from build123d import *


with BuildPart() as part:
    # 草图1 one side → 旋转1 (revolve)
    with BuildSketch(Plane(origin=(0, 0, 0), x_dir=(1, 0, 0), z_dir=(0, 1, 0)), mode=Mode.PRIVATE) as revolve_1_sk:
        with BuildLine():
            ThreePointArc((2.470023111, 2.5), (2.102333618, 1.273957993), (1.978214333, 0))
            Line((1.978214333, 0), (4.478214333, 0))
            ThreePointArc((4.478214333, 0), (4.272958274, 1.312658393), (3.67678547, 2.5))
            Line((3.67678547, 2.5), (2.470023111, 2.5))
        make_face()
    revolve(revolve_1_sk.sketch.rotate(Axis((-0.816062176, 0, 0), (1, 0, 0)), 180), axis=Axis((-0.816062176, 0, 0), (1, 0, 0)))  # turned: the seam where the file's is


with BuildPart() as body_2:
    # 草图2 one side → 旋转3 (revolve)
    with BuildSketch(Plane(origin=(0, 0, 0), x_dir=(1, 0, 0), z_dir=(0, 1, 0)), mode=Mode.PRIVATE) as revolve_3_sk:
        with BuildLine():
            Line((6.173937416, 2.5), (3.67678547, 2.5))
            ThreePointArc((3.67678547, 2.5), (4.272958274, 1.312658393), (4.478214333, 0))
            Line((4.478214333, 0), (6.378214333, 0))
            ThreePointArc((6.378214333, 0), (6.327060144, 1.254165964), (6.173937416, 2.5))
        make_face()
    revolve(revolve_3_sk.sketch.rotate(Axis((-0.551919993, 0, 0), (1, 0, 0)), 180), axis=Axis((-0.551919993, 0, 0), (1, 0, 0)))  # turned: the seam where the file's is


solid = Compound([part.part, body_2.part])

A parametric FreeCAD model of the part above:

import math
import FreeCAD as App
import Part
import Sketcher

V = App.Vector
Q = App.Units.Quantity

doc = App.newDocument("Part")
body = doc.addObject("PartDesign::Body", "Body")

# Sketch on XZ plane
sketch1 = body.newObject("Sketcher::SketchObject", "Sketch")
sketch1.AttachmentSupport = (doc.getObject("XZ_Plane"), [""])
sketch1.MapMode = "FlatFace"
sketch1.addGeometry(Part.ArcOfCircle(Part.Circle(V(8.578214, 0, 0), V(0, 0, 1), 6.6), math.radians(180), math.radians(202.258621)), False)
sketch1.addGeometry(Part.LineSegment(V(1.978214, 0, 0), V(4.478214, 0, 0)), False)
sketch1.addGeometry(Part.ArcOfCircle(Part.Circle(V(0.178214, 0, 0), V(0, 0, 1), 4.3), math.radians(-35.548744), math.radians(0)), False)
sketch1.addGeometry(Part.LineSegment(V(3.676785, -2.5, 0), V(2.470023, -2.5, 0)), False)
sketch1.addConstraint(Sketcher.Constraint("Coincident", 0, 1, 1, 1))
sketch1.addConstraint(Sketcher.Constraint("Coincident", 1, 2, 2, 2))
sketch1.addConstraint(Sketcher.Constraint("Coincident", 2, 1, 3, 1))
sketch1.addConstraint(Sketcher.Constraint("Coincident", 3, 2, 0, 2))
sketch1.addConstraint(Sketcher.Constraint("Horizontal", 1))
sketch1.addConstraint(Sketcher.Constraint("Horizontal", 3))
sketch1.addConstraint(Sketcher.Constraint("PointOnObject", 0, 3, -1))
sketch1.addConstraint(Sketcher.Constraint("PointOnObject", 2, 3, -1))
sketch1.addConstraint(Sketcher.Constraint("PointOnObject", 0, 1, -1))
sketch1.addConstraint(Sketcher.Constraint("Radius", 0, Q("6.6 mm")))
sketch1.addConstraint(Sketcher.Constraint("Radius", 2, Q("4.3 mm")))
sketch1.addConstraint(Sketcher.Constraint("DistanceX", 1, 1, 1, 2, Q("2.5 mm")))
sketch1.addConstraint(Sketcher.Constraint("DistanceY", 2, 1, -1, 1, Q("2.5 mm")))
sketch1.addConstraint(Sketcher.Constraint("DistanceX", -1, 1, 0, 3, Q("8.578214 mm")))
revolution = body.newObject("PartDesign::Revolution", "Revolution")
revolution.Profile = sketch1
revolution.ReferenceAxis = (sketch1, ["H_Axis"])
revolution.Angle = 360
body2 = doc.addObject("PartDesign::Body", "Body001")

# Sketch on XZ plane
sketch2 = body2.newObject("Sketcher::SketchObject", "Sketch001")
sketch2.AttachmentSupport = (doc.getObject("XZ_Plane001"), [""])
sketch2.MapMode = "FlatFace"
sketch2.addGeometry(Part.LineSegment(V(6.173937, -2.5, 0), V(3.676785, -2.5, 0)), False)
sketch2.addGeometry(Part.ArcOfCircle(Part.Circle(V(0.178214, 0, 0), V(0, 0, 1), 4.3), math.radians(-35.548744), math.radians(0)), False)
sketch2.addGeometry(Part.LineSegment(V(4.478214, 0, 0), V(6.378214, 0, 0)), False)
sketch2.addGeometry(Part.ArcOfCircle(Part.Circle(V(-9.021786, 0, 0), V(0, 0, 1), 15.4), math.radians(-9.342609), math.radians(0)), False)
sketch2.addConstraint(Sketcher.Constraint("Coincident", 0, 2, 1, 1))
sketch2.addConstraint(Sketcher.Constraint("Coincident", 1, 2, 2, 1))
sketch2.addConstraint(Sketcher.Constraint("Coincident", 2, 2, 3, 2))
sketch2.addConstraint(Sketcher.Constraint("Coincident", 3, 1, 0, 1))
sketch2.addConstraint(Sketcher.Constraint("Horizontal", 0))
sketch2.addConstraint(Sketcher.Constraint("Horizontal", 2))
sketch2.addConstraint(Sketcher.Constraint("PointOnObject", 1, 3, -1))
sketch2.addConstraint(Sketcher.Constraint("PointOnObject", 3, 3, -1))
sketch2.addConstraint(Sketcher.Constraint("PointOnObject", 1, 2, -1))
sketch2.addConstraint(Sketcher.Constraint("Radius", 1, Q("4.3 mm")))
sketch2.addConstraint(Sketcher.Constraint("Radius", 3, Q("15.4 mm")))
sketch2.addConstraint(Sketcher.Constraint("DistanceX", 2, 1, 2, 2, Q("1.9 mm")))
sketch2.addConstraint(Sketcher.Constraint("DistanceY", 0, 2, -1, 1, Q("2.5 mm")))
sketch2.addConstraint(Sketcher.Constraint("DistanceX", -1, 1, 1, 3, Q("0.178214 mm")))
revolution2 = body2.newObject("PartDesign::Revolution", "Revolution001")
revolution2.Profile = sketch2
revolution2.ReferenceAxis = (sketch2, ["H_Axis"])
revolution2.Angle = 360

doc.recompute()
